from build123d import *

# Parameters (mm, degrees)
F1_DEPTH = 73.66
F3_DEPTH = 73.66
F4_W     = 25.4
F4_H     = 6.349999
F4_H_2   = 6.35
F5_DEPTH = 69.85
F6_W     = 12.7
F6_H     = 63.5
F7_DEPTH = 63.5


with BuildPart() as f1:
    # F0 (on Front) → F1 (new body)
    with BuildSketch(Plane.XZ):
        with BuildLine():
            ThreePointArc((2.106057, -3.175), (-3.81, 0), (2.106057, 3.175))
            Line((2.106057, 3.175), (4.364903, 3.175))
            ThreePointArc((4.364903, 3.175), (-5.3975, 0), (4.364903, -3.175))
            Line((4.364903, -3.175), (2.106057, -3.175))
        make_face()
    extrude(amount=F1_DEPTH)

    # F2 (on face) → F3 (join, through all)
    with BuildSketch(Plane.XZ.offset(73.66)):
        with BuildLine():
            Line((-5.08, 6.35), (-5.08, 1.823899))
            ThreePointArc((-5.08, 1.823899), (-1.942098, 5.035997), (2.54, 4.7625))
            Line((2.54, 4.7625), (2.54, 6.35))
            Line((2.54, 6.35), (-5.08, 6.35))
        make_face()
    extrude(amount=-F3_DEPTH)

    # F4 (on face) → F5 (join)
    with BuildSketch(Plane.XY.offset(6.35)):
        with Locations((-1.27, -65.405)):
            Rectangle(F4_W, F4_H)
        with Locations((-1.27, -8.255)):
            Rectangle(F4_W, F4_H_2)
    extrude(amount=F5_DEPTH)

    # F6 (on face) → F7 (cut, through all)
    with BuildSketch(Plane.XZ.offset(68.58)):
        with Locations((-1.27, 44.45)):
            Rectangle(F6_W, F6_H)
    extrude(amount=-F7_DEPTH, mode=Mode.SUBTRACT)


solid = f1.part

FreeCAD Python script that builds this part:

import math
import FreeCAD as App
import Part
import Sketcher

V = App.Vector
Q = App.Units.Quantity


def add_polygon(sketch, points):
    """Adds a closed chain of lines whose ends are joined by coincident constraints."""
    first, n = sketch.GeometryCount, len(points)
    for a, b in zip(points, points[1:] + points[:1]):
        sketch.addGeometry(Part.LineSegment(App.Vector(*a, 0), App.Vector(*b, 0)), False)
    for i in range(n):
        sketch.addConstraint(Sketcher.Constraint("Coincident", first + i, 2, first + (i + 1) % n, 1))

doc = App.newDocument("Part")
body = doc.addObject("PartDesign::Body", "Body")

sketch1 = body.newObject("Sketcher::SketchObject", "Sketch")
sketch1.AttachmentSupport = (doc.getObject("XZ_Plane"), [""])
sketch1.MapMode = "FlatFace"
sketch1.addGeometry(Part.ArcOfCircle(Part.Circle(V(0, 0, 0), V(0, 0, 1), 3.81), math.radians(56.442688), math.radians(303.557312)), False)
sketch1.addGeometry(Part.LineSegment(V(2.106057, 3.175, 0), V(4.364903, 3.175, 0)), False)
sketch1.addGeometry(Part.ArcOfCircle(Part.Circle(V(0, 0, 0), V(0, 0, 1), 5.3975), math.radians(36.03188), math.radians(323.96812)), False)
sketch1.addGeometry(Part.LineSegment(V(4.364903, -3.175, 0), V(2.106057, -3.175, 0)), False)
sketch1.addConstraint(Sketcher.Constraint("Coincident", 0, 1, 1, 1))
sketch1.addConstraint(Sketcher.Constraint("Coincident", 1, 2, 2, 1))
sketch1.addConstraint(Sketcher.Constraint("Coincident", 2, 2, 3, 1))
sketch1.addConstraint(Sketcher.Constraint("Coincident", 3, 2, 0, 2))
sketch1.addConstraint(Sketcher.Constraint("Horizontal", 1))
sketch1.addConstraint(Sketcher.Constraint("Horizontal", 3))
sketch1.addConstraint(Sketcher.Constraint("Coincident", 0, 3, -1, 1))
sketch1.addConstraint(Sketcher.Constraint("Coincident", 2, 3, -1, 1))
sketch1.addConstraint(Sketcher.Constraint("Vertical", 1, 2, 2, 2))
sketch1.addConstraint(Sketcher.Constraint("Radius", 0, Q("0.15 in")))
sketch1.addConstraint(Sketcher.Constraint("Radius", 2, Q("0.2125 in")))
sketch1.addConstraint(Sketcher.Constraint("DistanceY", 2, 2, 1, 2, Q("0.25 in")))
pad1 = body.newObject("PartDesign::Pad", "Pad")
pad1.Profile = sketch1
pad1.Length = Q("2.9 in")

sketch2 = body.newObject("Sketcher::SketchObject", "Sketch001")
sketch2.AttachmentSupport = (doc.getObject("XZ_Plane"), [""])
sketch2.MapMode = "FlatFace"
sketch2.AttachmentOffset = App.Placement(V(0, 0, 2.9 * 25.4), App.Rotation())
sketch2.addGeometry(Part.LineSegment(V(-5.08, 6.35, 0), V(-5.08, 1.823899, 0)), False)
sketch2.addGeometry(Part.ArcOfCircle(Part.Circle(V(0, 0.000001, 0), V(0, 0, 1), 5.397499), math.radians(61.927505), math.radians(160.250081)), False)
sketch2.addGeometry(Part.LineSegment(V(2.54, 4.7625, 0), V(2.54, 6.35, 0)), False)
sketch2.addGeometry(Part.LineSegment(V(2.54, 6.35, 0), V(-5.08, 6.35, 0)), False)
sketch2.addConstraint(Sketcher.Constraint("Coincident", 0, 2, 1, 2))
sketch2.addConstraint(Sketcher.Constraint("Coincident", 1, 1, 2, 1))
sketch2.addConstraint(Sketcher.Constraint("Coincident", 2, 2, 3, 1))
sketch2.addConstraint(Sketcher.Constraint("Coincident", 3, 2, 0, 1))
sketch2.addConstraint(Sketcher.Constraint("Vertical", 0))
sketch2.addConstraint(Sketcher.Constraint("Vertical", 2))
sketch2.addConstraint(Sketcher.Constraint("Horizontal", 3))
sketch2.addConstraint(Sketcher.Constraint("Coincident", 1, 3, -1, 1))
sketch2.addConstraint(Sketcher.Constraint("DistanceX", 3, 2, 3, 1, Q("0.3 in")))
sketch2.addConstraint(Sketcher.Constraint("DistanceX", 0, 2, -1, 1, Q("0.2 in")))
sketch2.addConstraint(Sketcher.Constraint("Radius", 1, Q("0.2125 in")))
sketch2.addConstraint(Sketcher.Constraint("DistanceY", 2, 1, 2, 2, Q("0.0625 in")))
pad2 = body.newObject("PartDesign::Pad", "Pad001")
pad2.Profile = sketch2
pad2.Length = Q("2.9 in")
pad2.Reversed = True

sketch3 = body.newObject("Sketcher::SketchObject", "Sketch002")
sketch3.AttachmentSupport = (doc.getObject("XY_Plane"), [""])
sketch3.MapMode = "FlatFace"
sketch3.AttachmentOffset = App.Placement(V(0, 0, 0.25 * 25.4), App.Rotation())
add_polygon(sketch3, [(-13.97, -62.230001), (-13.97, -68.579999), (11.43, -68.579999), (11.43, -62.230001)])
add_polygon(sketch3, [(-13.97, -5.08), (-13.97, -11.43), (11.43, -11.43), (11.43, -5.08)])
sketch3.addConstraint(Sketcher.Constraint("Vertical", 0))
sketch3.addConstraint(Sketcher.Constraint("Horizontal", 1))
sketch3.addConstraint(Sketcher.Constraint("Vertical", 2))
sketch3.addConstraint(Sketcher.Constraint("Horizontal", 3))
sketch3.addConstraint(Sketcher.Constraint("Vertical", 4))
sketch3.addConstraint(Sketcher.Constraint("Horizontal", 5))
sketch3.addConstraint(Sketcher.Constraint("Vertical", 6))
sketch3.addConstraint(Sketcher.Constraint("Horizontal", 7))
sketch3.addConstraint(Sketcher.Constraint("Vertical", 3, 2, 4, 2))
sketch3.addConstraint(Sketcher.Constraint("Vertical", 2, 2, 5, 2))
sketch3.addConstraint(Sketcher.Constraint("Equal", 2, 4))
sketch3.addConstraint(Sketcher.Constraint("DistanceX", 1, 1, 1, 2, Q("1 in")))
sketch3.addConstraint(Sketcher.Constraint("DistanceY", 3, 2, 4, 2, Q("2 in")))
sketch3.addConstraint(Sketcher.Constraint("DistanceY", 0, 2, 0, 1, Q("0.25 in")))
sketch3.addConstraint(Sketcher.Constraint("DistanceY", 0, 2, -1, 1, Q("2.7 in")))
sketch3.addConstraint(Sketcher.Constraint("DistanceX", 0, 2, -1, 1, Q("0.55 in")))
pad3 = body.newObject("PartDesign::Pad", "Pad002")
pad3.Profile = sketch3
pad3.Length = Q("2.75 in")

sketch4 = body.newObject("Sketcher::SketchObject", "Sketch003")
sketch4.AttachmentSupport = (doc.getObject("XZ_Plane"), [""])
sketch4.MapMode = "FlatFace"
sketch4.AttachmentOffset = App.Placement(V(0, 0, 2.7 * 25.4), App.Rotation())
add_polygon(sketch4, [(-7.62, 76.2), (-7.62, 12.7), (5.08, 12.7), (5.08, 76.2)])
sketch4.addConstraint(Sketcher.Constraint("Vertical", 0))
sketch4.addConstraint(Sketcher.Constraint("Horizontal", 1))
sketch4.addConstraint(Sketcher.Constraint("Vertical", 2))
sketch4.addConstraint(Sketcher.Constraint("Horizontal", 3))
sketch4.addConstraint(Sketcher.Constraint("DistanceX", 1, 1, 1, 2, Q("0.5 in")))
sketch4.addConstraint(Sketcher.Constraint("DistanceY", 0, 2, 0, 1, Q("2.5 in")))
sketch4.addConstraint(Sketcher.Constraint("DistanceY", -1, 1, 2, 2, Q("3 in")))
sketch4.addConstraint(Sketcher.Constraint("DistanceX", 0, 2, -1, 1, Q("0.3 in")))
pocket1 = body.newObject("PartDesign::Pocket", "Pocket")
pocket1.Profile = sketch4
pocket1.Type = "ThroughAll"

doc.recompute()
